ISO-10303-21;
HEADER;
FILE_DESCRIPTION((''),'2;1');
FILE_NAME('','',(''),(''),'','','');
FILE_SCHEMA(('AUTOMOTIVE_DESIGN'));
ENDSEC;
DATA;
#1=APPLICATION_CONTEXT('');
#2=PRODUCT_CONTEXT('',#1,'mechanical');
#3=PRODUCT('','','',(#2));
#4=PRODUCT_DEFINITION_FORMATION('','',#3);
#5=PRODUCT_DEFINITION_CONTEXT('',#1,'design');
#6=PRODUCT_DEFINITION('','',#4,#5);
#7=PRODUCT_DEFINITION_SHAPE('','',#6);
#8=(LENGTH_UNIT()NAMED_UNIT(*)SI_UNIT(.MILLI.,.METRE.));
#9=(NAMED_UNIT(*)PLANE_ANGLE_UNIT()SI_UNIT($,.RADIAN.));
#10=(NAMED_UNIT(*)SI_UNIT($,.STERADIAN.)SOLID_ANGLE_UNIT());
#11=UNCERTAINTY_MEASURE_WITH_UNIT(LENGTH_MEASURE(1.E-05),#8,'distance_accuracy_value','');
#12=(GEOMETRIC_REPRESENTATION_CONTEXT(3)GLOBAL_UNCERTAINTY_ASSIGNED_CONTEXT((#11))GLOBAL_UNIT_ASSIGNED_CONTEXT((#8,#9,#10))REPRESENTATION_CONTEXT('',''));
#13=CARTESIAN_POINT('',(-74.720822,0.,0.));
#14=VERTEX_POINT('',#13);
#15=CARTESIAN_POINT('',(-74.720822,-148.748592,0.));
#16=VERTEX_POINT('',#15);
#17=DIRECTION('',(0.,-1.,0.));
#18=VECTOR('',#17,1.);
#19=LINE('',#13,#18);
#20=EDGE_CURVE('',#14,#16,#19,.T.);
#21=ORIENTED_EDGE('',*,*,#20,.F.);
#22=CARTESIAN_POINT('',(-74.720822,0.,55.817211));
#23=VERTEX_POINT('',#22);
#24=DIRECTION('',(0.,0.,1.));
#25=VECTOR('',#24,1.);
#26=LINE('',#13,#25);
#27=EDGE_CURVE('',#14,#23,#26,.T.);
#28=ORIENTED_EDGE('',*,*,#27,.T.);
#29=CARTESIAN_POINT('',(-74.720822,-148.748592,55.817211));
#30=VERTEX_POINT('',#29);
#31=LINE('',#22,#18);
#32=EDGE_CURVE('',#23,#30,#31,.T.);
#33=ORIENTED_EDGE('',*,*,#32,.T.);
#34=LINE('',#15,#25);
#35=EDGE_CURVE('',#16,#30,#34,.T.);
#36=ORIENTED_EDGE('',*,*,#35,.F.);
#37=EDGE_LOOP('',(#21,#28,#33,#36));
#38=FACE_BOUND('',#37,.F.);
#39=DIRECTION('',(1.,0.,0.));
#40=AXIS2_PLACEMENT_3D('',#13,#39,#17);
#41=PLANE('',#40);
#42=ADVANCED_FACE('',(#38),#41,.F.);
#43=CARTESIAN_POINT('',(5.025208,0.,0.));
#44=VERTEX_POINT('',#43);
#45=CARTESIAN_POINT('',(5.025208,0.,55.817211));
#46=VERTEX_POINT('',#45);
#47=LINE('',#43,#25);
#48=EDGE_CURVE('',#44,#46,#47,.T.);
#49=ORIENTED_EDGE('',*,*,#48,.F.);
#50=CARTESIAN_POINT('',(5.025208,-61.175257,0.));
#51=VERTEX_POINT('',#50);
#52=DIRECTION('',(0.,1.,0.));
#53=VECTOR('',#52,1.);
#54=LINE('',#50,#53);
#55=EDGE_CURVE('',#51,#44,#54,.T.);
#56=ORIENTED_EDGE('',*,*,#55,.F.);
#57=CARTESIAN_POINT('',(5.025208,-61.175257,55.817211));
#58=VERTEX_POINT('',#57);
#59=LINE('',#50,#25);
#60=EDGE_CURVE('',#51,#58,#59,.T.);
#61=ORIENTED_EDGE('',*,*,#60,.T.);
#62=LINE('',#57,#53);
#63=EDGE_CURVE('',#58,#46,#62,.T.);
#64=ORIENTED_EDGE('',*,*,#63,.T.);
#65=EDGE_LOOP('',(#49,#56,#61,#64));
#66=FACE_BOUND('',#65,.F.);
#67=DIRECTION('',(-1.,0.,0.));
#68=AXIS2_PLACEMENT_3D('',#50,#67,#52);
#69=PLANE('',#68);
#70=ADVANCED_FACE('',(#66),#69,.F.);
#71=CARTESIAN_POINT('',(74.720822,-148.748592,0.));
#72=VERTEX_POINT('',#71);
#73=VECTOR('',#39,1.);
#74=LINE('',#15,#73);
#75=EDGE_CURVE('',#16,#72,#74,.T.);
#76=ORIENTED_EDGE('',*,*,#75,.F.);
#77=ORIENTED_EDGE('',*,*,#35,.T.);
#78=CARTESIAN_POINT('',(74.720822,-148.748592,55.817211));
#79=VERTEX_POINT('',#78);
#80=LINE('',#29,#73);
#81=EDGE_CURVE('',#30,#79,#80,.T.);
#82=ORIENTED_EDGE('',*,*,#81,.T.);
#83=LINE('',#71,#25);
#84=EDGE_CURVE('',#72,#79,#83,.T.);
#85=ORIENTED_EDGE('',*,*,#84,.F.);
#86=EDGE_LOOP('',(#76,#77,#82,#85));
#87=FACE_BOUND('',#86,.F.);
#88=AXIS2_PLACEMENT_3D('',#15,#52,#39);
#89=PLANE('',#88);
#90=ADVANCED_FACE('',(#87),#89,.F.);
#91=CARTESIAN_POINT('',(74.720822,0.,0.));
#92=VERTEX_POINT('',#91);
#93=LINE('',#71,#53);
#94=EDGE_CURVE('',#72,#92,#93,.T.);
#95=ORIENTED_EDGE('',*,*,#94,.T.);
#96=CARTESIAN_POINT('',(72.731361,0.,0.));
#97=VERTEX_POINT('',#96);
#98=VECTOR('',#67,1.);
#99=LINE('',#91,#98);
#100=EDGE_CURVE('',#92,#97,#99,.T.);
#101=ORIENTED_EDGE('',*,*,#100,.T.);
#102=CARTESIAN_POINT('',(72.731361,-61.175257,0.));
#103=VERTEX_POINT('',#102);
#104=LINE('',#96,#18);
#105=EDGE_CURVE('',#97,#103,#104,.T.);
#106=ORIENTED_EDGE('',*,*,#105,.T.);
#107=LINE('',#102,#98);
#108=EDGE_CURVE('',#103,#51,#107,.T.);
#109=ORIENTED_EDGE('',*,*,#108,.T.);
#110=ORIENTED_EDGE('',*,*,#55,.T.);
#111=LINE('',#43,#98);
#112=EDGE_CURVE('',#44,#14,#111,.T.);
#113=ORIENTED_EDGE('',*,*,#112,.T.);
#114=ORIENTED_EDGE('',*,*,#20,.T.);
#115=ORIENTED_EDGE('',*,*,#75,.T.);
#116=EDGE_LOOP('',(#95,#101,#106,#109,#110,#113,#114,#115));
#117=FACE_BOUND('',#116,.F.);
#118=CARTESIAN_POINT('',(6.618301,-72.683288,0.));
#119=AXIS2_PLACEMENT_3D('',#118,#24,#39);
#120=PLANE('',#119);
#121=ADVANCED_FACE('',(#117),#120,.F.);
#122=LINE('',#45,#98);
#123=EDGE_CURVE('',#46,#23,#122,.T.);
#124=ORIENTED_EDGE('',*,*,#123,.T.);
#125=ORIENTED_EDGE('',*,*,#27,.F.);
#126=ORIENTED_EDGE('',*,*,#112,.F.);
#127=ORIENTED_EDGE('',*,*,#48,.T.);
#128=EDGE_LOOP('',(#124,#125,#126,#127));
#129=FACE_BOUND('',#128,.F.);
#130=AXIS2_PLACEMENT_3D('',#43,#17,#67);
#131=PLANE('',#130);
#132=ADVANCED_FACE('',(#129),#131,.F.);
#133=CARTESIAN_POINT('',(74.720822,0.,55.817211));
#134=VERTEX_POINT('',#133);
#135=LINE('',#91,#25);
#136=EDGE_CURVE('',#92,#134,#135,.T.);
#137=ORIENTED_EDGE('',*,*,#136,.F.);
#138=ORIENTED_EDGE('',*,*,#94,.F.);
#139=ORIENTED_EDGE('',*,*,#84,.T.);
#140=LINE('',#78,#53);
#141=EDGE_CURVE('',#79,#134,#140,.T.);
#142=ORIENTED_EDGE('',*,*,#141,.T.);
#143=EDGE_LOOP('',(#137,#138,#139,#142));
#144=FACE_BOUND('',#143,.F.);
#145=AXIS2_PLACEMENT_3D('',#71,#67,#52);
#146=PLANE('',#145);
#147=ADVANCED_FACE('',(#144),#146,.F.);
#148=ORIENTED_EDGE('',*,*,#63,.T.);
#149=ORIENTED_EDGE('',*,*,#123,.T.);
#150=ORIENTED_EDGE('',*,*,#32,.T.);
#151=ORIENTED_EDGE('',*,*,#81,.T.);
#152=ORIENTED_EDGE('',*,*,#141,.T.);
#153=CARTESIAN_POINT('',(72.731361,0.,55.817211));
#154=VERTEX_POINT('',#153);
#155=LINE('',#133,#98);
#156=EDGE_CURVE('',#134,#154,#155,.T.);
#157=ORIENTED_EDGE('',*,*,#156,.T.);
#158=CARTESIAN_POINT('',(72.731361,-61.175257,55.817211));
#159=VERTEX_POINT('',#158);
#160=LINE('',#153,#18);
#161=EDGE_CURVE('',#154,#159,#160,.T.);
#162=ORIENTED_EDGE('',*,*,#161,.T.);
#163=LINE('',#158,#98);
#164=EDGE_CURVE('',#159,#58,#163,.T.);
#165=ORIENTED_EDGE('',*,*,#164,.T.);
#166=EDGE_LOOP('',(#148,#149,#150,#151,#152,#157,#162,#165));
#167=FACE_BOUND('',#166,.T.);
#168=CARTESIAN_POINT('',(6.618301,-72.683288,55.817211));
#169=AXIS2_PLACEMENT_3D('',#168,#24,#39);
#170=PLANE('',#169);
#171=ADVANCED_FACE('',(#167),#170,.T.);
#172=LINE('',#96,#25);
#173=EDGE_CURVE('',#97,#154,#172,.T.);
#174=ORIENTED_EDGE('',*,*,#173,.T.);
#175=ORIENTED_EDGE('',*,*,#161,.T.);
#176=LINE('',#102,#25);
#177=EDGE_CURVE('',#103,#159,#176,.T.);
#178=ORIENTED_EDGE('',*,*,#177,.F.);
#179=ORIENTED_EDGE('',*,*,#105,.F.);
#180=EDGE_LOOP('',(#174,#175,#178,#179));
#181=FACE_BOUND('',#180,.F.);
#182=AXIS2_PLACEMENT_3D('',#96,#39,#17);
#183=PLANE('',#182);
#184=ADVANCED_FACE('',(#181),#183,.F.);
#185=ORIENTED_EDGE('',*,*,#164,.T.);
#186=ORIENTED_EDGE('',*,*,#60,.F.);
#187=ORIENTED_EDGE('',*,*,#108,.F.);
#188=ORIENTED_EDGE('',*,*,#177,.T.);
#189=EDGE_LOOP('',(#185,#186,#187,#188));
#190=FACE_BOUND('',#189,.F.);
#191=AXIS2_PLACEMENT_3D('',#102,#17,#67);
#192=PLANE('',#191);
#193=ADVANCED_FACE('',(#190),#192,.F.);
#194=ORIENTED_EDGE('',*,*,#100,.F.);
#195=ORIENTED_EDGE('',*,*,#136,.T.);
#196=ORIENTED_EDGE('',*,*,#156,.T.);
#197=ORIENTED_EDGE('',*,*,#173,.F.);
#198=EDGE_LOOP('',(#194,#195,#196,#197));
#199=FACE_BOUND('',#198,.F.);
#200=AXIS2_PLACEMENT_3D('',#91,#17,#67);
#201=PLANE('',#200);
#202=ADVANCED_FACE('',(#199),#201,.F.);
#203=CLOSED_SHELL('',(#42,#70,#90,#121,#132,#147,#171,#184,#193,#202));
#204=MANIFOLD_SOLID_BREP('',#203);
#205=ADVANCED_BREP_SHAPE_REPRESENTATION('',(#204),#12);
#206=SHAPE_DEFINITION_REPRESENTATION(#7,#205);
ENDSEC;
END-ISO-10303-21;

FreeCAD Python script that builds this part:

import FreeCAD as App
import Part
import Sketcher

V = App.Vector

doc = App.newDocument("Part")
body = doc.addObject("PartDesign::Body", "Body")

sketch1 = doc.addObject("Sketcher::SketchObject", "Sketch")
body.addObject(sketch1)
sketch1.AttachmentSupport = (doc.XY_Plane, [""])
sketch1.MapMode = "FlatFace"
sketch1.addGeometry([
    Part.LineSegment(V(5.025208, 0, 0), V(-74.720822, 0, 0)),
    Part.LineSegment(V(-74.720822, 0, 0), V(-74.720822, -148.748592, 0)),
    Part.LineSegment(V(-74.720822, -148.748592, 0), V(74.720822, -148.748592, 0)),
    Part.LineSegment(V(74.720822, -148.748592, 0), V(74.720822, 0, 0)),
    Part.LineSegment(V(74.720822, 0, 0), V(72.731361, 0, 0)),
    Part.LineSegment(V(72.731361, 0, 0), V(72.731361, -61.175257, 0)),
    Part.LineSegment(V(72.731361, -61.175257, 0), V(5.025208, -61.175257, 0)),
    Part.LineSegment(V(5.025208, -61.175257, 0), V(5.025208, 0, 0)),
], False)
sketch1.addConstraint([
    Sketcher.Constraint("Coincident", 0, 2, 1, 1),
    Sketcher.Constraint("Coincident", 1, 2, 2, 1),
    Sketcher.Constraint("Coincident", 2, 2, 3, 1),
    Sketcher.Constraint("Coincident", 3, 2, 4, 1),
    Sketcher.Constraint("Coincident", 4, 2, 5, 1),
    Sketcher.Constraint("Coincident", 5, 2, 6, 1),
    Sketcher.Constraint("Coincident", 6, 2, 7, 1),
    Sketcher.Constraint("Coincident", 7, 2, 0, 1),
    Sketcher.Constraint("Horizontal", 0),
    Sketcher.Constraint("Vertical", 1),
    Sketcher.Constraint("Horizontal", 2),
    Sketcher.Constraint("Vertical", 3),
    Sketcher.Constraint("Horizontal", 4),
    Sketcher.Constraint("Vertical", 5),
    Sketcher.Constraint("Horizontal", 6),
    Sketcher.Constraint("Vertical", 7),
    Sketcher.Constraint("Symmetric", 0, 2, 3, 2, -1, 1),
    Sketcher.Constraint("PointOnObject", 0, 2, -1),
    Sketcher.Constraint("DistanceX", 0, 2, 0, 1, 79.74603),
    Sketcher.Constraint("DistanceX", 4, 2, 4, 1, 1.989461),
    Sketcher.Constraint("DistanceY", 1, 2, 1, 1, 148.748592),
    Sketcher.Constraint("DistanceX", 2, 1, 2, 2, 149.441644),
    Sketcher.Constraint("DistanceY", 5, 2, 5, 1, 61.175257),
])
pad1 = doc.addObject("PartDesign::Pad", "Pad")
body.addObject(pad1)
pad1.Profile = sketch1
pad1.Length = 55.817211

doc.recompute()
